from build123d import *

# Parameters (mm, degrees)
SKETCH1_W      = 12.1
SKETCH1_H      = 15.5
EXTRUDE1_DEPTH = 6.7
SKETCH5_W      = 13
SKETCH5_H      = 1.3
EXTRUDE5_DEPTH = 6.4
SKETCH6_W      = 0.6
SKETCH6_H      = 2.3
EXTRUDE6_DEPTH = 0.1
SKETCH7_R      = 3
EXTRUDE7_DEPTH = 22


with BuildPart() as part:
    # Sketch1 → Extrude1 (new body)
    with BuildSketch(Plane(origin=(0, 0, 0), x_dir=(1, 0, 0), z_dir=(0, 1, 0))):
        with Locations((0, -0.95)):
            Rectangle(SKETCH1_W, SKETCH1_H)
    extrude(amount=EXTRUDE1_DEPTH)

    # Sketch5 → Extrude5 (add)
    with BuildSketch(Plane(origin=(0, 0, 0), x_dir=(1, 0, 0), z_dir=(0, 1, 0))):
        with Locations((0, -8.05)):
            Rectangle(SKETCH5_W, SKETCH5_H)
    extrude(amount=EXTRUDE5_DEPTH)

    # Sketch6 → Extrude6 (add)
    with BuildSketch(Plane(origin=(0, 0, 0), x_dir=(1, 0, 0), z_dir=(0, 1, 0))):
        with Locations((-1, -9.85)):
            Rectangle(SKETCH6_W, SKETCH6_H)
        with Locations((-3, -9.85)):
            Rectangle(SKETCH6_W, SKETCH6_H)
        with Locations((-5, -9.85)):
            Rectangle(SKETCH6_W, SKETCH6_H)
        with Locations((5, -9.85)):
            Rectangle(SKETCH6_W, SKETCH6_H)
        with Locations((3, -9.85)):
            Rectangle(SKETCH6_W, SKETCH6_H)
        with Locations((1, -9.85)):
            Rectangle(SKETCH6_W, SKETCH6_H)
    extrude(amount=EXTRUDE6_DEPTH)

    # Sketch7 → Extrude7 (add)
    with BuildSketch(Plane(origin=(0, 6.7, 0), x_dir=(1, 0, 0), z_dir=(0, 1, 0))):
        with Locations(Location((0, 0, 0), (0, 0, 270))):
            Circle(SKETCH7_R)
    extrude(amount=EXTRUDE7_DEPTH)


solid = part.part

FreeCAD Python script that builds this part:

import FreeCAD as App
import Part
import Sketcher

V = App.Vector
Q = App.Units.Quantity


def add_polygon(sketch, points):
    """Adds a closed chain of lines whose ends are joined by coincident constraints."""
    first, n = sketch.GeometryCount, len(points)
    for a, b in zip(points, points[1:] + points[:1]):
        sketch.addGeometry(Part.LineSegment(App.Vector(*a, 0), App.Vector(*b, 0)), False)
    for i in range(n):
        sketch.addConstraint(Sketcher.Constraint("Coincident", first + i, 2, first + (i + 1) % n, 1))

doc = App.newDocument("Part")
body = doc.addObject("PartDesign::Body", "Body")

# Sketch on XZ plane
sketch1 = doc.addObject("Sketcher::SketchObject", "Sketch")
body.addObject(sketch1)
sketch1.AttachmentSupport = (doc.XZ_Plane, [""])
sketch1.MapMode = "FlatFace"
add_polygon(sketch1, [(-6, -7), (-6, 9), (6, 9), (6, -7)])  # lines 0-3
sketch1.addConstraint([
    Sketcher.Constraint("Vertical", 0),
    Sketcher.Constraint("Horizontal", 1),
    Sketcher.Constraint("Vertical", 2),
    Sketcher.Constraint("Horizontal", 3),
    Sketcher.Constraint("DistanceX", 1, 1, 1, 2, Q("12.1 mm")),
    Sketcher.Constraint("DistanceY", 0, 1, 0, 2, Q("15.5 mm")),
    Sketcher.Constraint("DistanceY", -1, 1, 0, 2, Q("8.7 mm")),
    Sketcher.Constraint("DistanceX", 0, 2, -1, 1, Q("6.05 mm")),
])
pad1 = doc.addObject("PartDesign::Pad", "Pad")
body.addObject(pad1)
pad1.Profile = sketch1
pad1.Length = 6.7
pad1.Reversed = True

# Sketch on XZ plane
sketch2 = doc.addObject("Sketcher::SketchObject", "Sketch001")
body.addObject(sketch2)
sketch2.AttachmentSupport = (doc.XZ_Plane, [""])
sketch2.MapMode = "FlatFace"
add_polygon(sketch2, [(-6.5, 7.4), (-6.5, 8.7), (6.5, 8.7), (6.5, 7.4)])  # lines 0-3
sketch2.addConstraint([
    Sketcher.Constraint("Vertical", 0),
    Sketcher.Constraint("Horizontal", 1),
    Sketcher.Constraint("Vertical", 2),
    Sketcher.Constraint("Horizontal", 3),
    Sketcher.Constraint("DistanceX", 1, 1, 1, 2, Q("13 mm")),
    Sketcher.Constraint("DistanceY", 0, 1, 0, 2, Q("1.3 mm")),
    Sketcher.Constraint("DistanceX", 0, 2, -1, 1, Q("6.5 mm")),
    Sketcher.Constraint("DistanceY", -1, 1, 0, 2, Q("8.7 mm")),
])
pad2 = doc.addObject("PartDesign::Pad", "Pad001")
body.addObject(pad2)
pad2.Profile = sketch2
pad2.Length = 6.4
pad2.Reversed = True

# Sketch on XZ plane
sketch3 = doc.addObject("Sketcher::SketchObject", "Sketch002")
body.addObject(sketch3)
sketch3.AttachmentSupport = (doc.XZ_Plane, [""])
sketch3.MapMode = "FlatFace"
add_polygon(sketch3, [(-1.3, 8.7), (-1.3, 11), (-0.7, 11), (-0.7, 8.7)])  # lines 0-3
add_polygon(sketch3, [(-3.3, 8.7), (-3.3, 11), (-2.7, 11), (-2.7, 8.7)])  # lines 4-7
add_polygon(sketch3, [(-5.3, 8.7), (-5.3, 11), (-4.7, 11), (-4.7, 8.7)])  # lines 8-11
add_polygon(sketch3, [(4.7, 8.7), (4.7, 11), (5.3, 11), (5.3, 8.7)])  # lines 12-15
add_polygon(sketch3, [(2.7, 8.7), (2.7, 11), (3.3, 11), (3.3, 8.7)])  # lines 16-19
add_polygon(sketch3, [(0.7, 8.7), (0.7, 11), (1.3, 11), (1.3, 8.7)])  # lines 20-23
sketch3.addConstraint([
    Sketcher.Constraint("Vertical", 0),
    Sketcher.Constraint("Horizontal", 1),
    Sketcher.Constraint("Vertical", 2),
    Sketcher.Constraint("Horizontal", 3),
    Sketcher.Constraint("Vertical", 4),
    Sketcher.Constraint("Horizontal", 5),
    Sketcher.Constraint("Vertical", 6),
    Sketcher.Constraint("Horizontal", 7),
    Sketcher.Constraint("Vertical", 8),
    Sketcher.Constraint("Horizontal", 9),
    Sketcher.Constraint("Vertical", 10),
    Sketcher.Constraint("Horizontal", 11),
    Sketcher.Constraint("Vertical", 12),
    Sketcher.Constraint("Horizontal", 13),
    Sketcher.Constraint("Vertical", 14),
    Sketcher.Constraint("Horizontal", 15),
    Sketcher.Constraint("Vertical", 16),
    Sketcher.Constraint("Horizontal", 17),
    Sketcher.Constraint("Vertical", 18),
    Sketcher.Constraint("Horizontal", 19),
    Sketcher.Constraint("Vertical", 20),
    Sketcher.Constraint("Horizontal", 21),
    Sketcher.Constraint("Vertical", 22),
    Sketcher.Constraint("Horizontal", 23),
    Sketcher.Constraint("Symmetric", 9, 2, 12, 2, -2),
    Sketcher.Constraint("Symmetric", 11, 2, 14, 2, -2),
    Sketcher.Constraint("Symmetric", 5, 2, 16, 2, -2),
    Sketcher.Constraint("Symmetric", 7, 2, 18, 2, -2),
    Sketcher.Constraint("Symmetric", 1, 2, 20, 2, -2),
    Sketcher.Constraint("Symmetric", 3, 2, 22, 2, -2),
    Sketcher.Constraint("Horizontal", 1, 2, 4, 2),
    Sketcher.Constraint("Horizontal", 3, 2, 6, 2),
    Sketcher.Constraint("Horizontal", 5, 2, 8, 2),
    Sketcher.Constraint("Horizontal", 7, 2, 10, 2),
    Sketcher.Constraint("Equal", 3, 5),
    Sketcher.Constraint("Equal", 7, 9),
    Sketcher.Constraint("DistanceX", 1, 1, 1, 2, Q("0.6 mm")),
    Sketcher.Constraint("DistanceY", 0, 1, 0, 2, Q("2.3 mm")),
    Sketcher.Constraint("DistanceY", -1, 1, 0, 2, Q("11 mm")),
    Sketcher.Constraint("DistanceX", 4, 2, 0, 2, Q("2 mm")),
    Sketcher.Constraint("DistanceX", 8, 2, 4, 2, Q("2 mm")),
    Sketcher.Constraint("DistanceX", 0, 2, 12, 2, Q("6 mm")),
])
pad3 = doc.addObject("PartDesign::Pad", "Pad002")
body.addObject(pad3)
pad3.Profile = sketch3
pad3.Length = 0.1
pad3.Reversed = True

# Sketch on XZ plane
sketch4 = doc.addObject("Sketcher::SketchObject", "Sketch003")
body.addObject(sketch4)
sketch4.AttachmentSupport = (doc.XZ_Plane, [""])
sketch4.MapMode = "FlatFace"
sketch4.AttachmentOffset = App.Placement(V(0, 0, -6.7), App.Rotation())
sketch4.addGeometry(Part.Circle(V(0, 0, 0), V(0, 0, 1), 3), False)
sketch4.addConstraint([
    Sketcher.Constraint("Coincident", 0, 3, -1, 1),
    Sketcher.Constraint("Diameter", 0, Q("6 mm")),
])
pad4 = doc.addObject("PartDesign::Pad", "Pad003")
body.addObject(pad4)
pad4.Profile = sketch4
pad4.Length = 22
pad4.Reversed = True

doc.recompute()
